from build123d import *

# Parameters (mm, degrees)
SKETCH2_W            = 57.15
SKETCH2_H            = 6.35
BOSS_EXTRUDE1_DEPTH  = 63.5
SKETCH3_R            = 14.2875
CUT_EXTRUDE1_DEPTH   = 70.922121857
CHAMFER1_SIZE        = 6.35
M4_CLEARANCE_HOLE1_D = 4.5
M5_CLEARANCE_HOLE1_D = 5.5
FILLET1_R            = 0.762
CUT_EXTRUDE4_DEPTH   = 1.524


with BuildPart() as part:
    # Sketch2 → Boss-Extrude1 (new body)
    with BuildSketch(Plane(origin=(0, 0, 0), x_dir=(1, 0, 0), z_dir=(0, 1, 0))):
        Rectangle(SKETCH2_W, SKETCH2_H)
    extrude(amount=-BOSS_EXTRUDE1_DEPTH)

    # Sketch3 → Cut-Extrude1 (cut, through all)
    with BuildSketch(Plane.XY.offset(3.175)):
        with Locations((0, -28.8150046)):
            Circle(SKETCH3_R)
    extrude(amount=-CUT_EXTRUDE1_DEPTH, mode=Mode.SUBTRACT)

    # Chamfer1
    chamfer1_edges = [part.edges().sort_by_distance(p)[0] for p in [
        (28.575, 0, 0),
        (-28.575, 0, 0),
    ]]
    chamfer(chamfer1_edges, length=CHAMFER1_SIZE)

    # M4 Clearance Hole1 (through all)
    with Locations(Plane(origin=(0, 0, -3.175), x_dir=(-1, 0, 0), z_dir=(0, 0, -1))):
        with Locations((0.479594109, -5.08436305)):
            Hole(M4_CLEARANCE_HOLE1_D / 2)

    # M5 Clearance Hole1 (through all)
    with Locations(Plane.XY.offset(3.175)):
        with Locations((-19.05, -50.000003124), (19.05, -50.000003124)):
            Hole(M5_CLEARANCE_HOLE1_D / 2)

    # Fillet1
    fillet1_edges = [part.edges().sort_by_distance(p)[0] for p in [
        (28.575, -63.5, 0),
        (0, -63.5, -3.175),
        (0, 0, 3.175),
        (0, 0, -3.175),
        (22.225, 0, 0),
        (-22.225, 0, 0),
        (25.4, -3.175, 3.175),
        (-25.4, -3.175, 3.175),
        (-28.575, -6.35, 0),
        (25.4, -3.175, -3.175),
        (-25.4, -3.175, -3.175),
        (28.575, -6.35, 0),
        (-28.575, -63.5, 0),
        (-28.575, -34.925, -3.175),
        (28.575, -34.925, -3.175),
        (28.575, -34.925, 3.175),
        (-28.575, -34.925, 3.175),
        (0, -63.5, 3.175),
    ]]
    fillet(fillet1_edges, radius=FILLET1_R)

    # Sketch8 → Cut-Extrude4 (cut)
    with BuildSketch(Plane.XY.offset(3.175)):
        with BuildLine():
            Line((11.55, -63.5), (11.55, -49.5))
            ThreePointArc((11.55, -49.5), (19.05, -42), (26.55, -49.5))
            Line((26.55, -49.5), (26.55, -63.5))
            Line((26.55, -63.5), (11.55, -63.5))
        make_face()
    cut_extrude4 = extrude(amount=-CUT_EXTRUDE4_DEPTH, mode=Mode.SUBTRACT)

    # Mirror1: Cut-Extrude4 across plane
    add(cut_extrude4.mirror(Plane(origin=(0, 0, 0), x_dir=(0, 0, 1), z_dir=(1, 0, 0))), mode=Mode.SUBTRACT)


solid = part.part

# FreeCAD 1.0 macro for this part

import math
import FreeCAD as App
import Part
import Sketcher

V = App.Vector
Q = App.Units.Quantity


def edges_at(feature, points):
    """Names of the edges that pass closest to the given points."""
    edges = feature.Shape.Edges
    near = lambda p: min(range(len(edges)), key=lambda i: edges[i].distToShape(Part.Vertex(*p))[0])
    return sorted({f"Edge{near(p) + 1}" for p in points})

doc = App.newDocument("Part")
body = doc.addObject("PartDesign::Body", "Body")

sketch1 = doc.addObject("Sketcher::SketchObject", "Sketch")
body.addObject(sketch1)
sketch1.AttachmentSupport = (doc.XZ_Plane, [""])
sketch1.MapMode = "FlatFace"
sketch1.addGeometry([
    Part.LineSegment(V(-29, -3, 0), V(-29, 3, 0)),
    Part.LineSegment(V(-29, 3, 0), V(29, 3, 0)),
    Part.LineSegment(V(29, 3, 0), V(29, -3, 0)),
    Part.LineSegment(V(29, -3, 0), V(-29, -3, 0)),
], False)
sketch1.addConstraint([
    Sketcher.Constraint("Coincident", 0, 2, 1, 1),
    Sketcher.Constraint("Coincident", 1, 2, 2, 1),
    Sketcher.Constraint("Coincident", 2, 2, 3, 1),
    Sketcher.Constraint("Coincident", 3, 2, 0, 1),
    Sketcher.Constraint("Vertical", 0),
    Sketcher.Constraint("Horizontal", 1),
    Sketcher.Constraint("Vertical", 2),
    Sketcher.Constraint("Horizontal", 3),
    Sketcher.Constraint("Symmetric", 0, 2, 2, 2, -1, 1),
    Sketcher.Constraint("DistanceX", 1, 1, 1, 2, Q("2.25 in")),
    Sketcher.Constraint("DistanceY", 0, 1, 0, 2, Q("0.25 in")),
])
pad1 = doc.addObject("PartDesign::Pad", "Pad")
body.addObject(pad1)
pad1.Profile = sketch1
pad1.Length = Q("2.5 in")

sketch2 = doc.addObject("Sketcher::SketchObject", "Sketch001")
body.addObject(sketch2)
sketch2.AttachmentSupport = (doc.XY_Plane, [""])
sketch2.MapMode = "FlatFace"
sketch2.AttachmentOffset = App.Placement(V(0, 0, 0.125 * 25.4), App.Rotation())
sketch2.addGeometry(Part.Circle(V(0, -29, 0), V(0, 0, 1), 14), False)
sketch2.addConstraint([
    Sketcher.Constraint("PointOnObject", 0, 3, -2),
    Sketcher.Constraint("Diameter", 0, Q("1.125 in")),
    Sketcher.Constraint("DistanceY", 0, 3, -1, 1, 28.815005),
])
pocket1 = doc.addObject("PartDesign::Pocket", "Pocket")
body.addObject(pocket1)
pocket1.Profile = sketch2
pocket1.Type = "ThroughAll"
doc.recompute()

chamfer = doc.addObject("PartDesign::Chamfer", "Chamfer")
body.addObject(chamfer)
chamfer.Base = (pocket1, edges_at(pocket1, [(28.575, 0, 0), (-28.575, 0, 0)]))
chamfer.Size = Q("0.25 in")

sketch3 = doc.addObject("Sketcher::SketchObject", "Sketch002")
body.addObject(sketch3)
sketch3.AttachmentSupport = (doc.XY_Plane, [""])
sketch3.MapMode = "FlatFace"
sketch3.AttachmentOffset = App.Placement(V(0, 0, -0.125 * 25.4), App.Rotation())
sketch3.addGeometry(Part.Circle(V(-0.5, -5.1, 0), V(0, 0, 1), 2.2), False)
sketch3.addConstraint([
    Sketcher.Constraint("Diameter", 0, 4.5),
    Sketcher.Constraint("DistanceX", 0, 3, -1, 1, 0.479594),
    Sketcher.Constraint("DistanceY", 0, 3, -1, 1, 5.084363),
])
doc.recompute()
hole = doc.addObject("PartDesign::Hole", "Hole")
body.addObject(hole)
hole.Profile = sketch3
hole.ThreadType = "None"
hole.Diameter = 4.5
hole.DepthType = "ThroughAll"
hole.Reversed = True

sketch4 = doc.addObject("Sketcher::SketchObject", "Sketch003")
body.addObject(sketch4)
sketch4.AttachmentSupport = (doc.XY_Plane, [""])
sketch4.MapMode = "FlatFace"
sketch4.AttachmentOffset = App.Placement(V(0, 0, 0.125 * 25.4), App.Rotation())
sketch4.addGeometry([
    Part.Circle(V(-19.1, -50, 0), V(0, 0, 1), 2.8),
    Part.Circle(V(19.1, -50, 0), V(0, 0, 1), 2.8),
], False)
sketch4.addConstraint([
    Sketcher.Constraint("Equal", 0, 1),
    Sketcher.Constraint("Symmetric", 0, 3, 1, 3, -2),
    Sketcher.Constraint("DistanceX", 0, 3, 1, 3, Q("1.5 in")),
    Sketcher.Constraint("Diameter", 0, 5.5),
    Sketcher.Constraint("DistanceY", 0, 3, -1, 1, 50.000003),
])
doc.recompute()
hole2 = doc.addObject("PartDesign::Hole", "Hole001")
body.addObject(hole2)
hole2.Profile = sketch4
hole2.ThreadType = "None"
hole2.Diameter = 5.5
hole2.DepthType = "ThroughAll"
doc.recompute()

fillet = doc.addObject("PartDesign::Fillet", "Fillet")
body.addObject(fillet)
fillet.Base = (hole2, edges_at(hole2, [
    (28.575, -63.5, 0),
    (0, -63.5, -3.175),
    (0, 0, 3.175),
    (0, 0, -3.175),
    (22.225, 0, 0),
    (-22.225, 0, 0),
    (25.4, -3.175, 3.175),
    (-25.4, -3.175, 3.175),
    (-28.575, -6.35, 0),
    (25.4, -3.175, -3.175),
    (-25.4, -3.175, -3.175),
    (28.575, -6.35, 0),
    (-28.575, -63.5, 0),
    (-28.575, -34.925, -3.175),
    (28.575, -34.925, -3.175),
    (28.575, -34.925, 3.175),
    (-28.575, -34.925, 3.175),
    (0, -63.5, 3.175),
]))
fillet.Radius = Q("0.03 in")

sketch5 = doc.addObject("Sketcher::SketchObject", "Sketch004")
body.addObject(sketch5)
sketch5.AttachmentSupport = (doc.XY_Plane, [""])
sketch5.MapMode = "FlatFace"
sketch5.AttachmentOffset = App.Placement(V(0, 0, 0.125 * 25.4), App.Rotation())
sketch5.addGeometry([
    Part.LineSegment(V(12, -50, 0), V(12, -64, 0)),
    Part.LineSegment(V(12, -64, 0), V(27, -64, 0)),
    Part.LineSegment(V(27, -64, 0), V(27, -50, 0)),
    Part.ArcOfCircle(Part.Circle(V(19, -50, 0), V(0, 0, 1), 8), math.radians(0), math.radians(180)),
], False)
sketch5.addConstraint([
    Sketcher.Constraint("Coincident", 0, 2, 1, 1),
    Sketcher.Constraint("Coincident", 1, 2, 2, 1),
    Sketcher.Constraint("Tangent", 2, 2, 3, 1),
    Sketcher.Constraint("Tangent", 3, 2, 0, 1),
    Sketcher.Constraint("Vertical", 0),
    Sketcher.Constraint("Horizontal", 1),
    Sketcher.Constraint("Vertical", 2),
    Sketcher.Constraint("DistanceY", 0, 2, -1, 1, Q("2.5 in")),
    Sketcher.Constraint("DistanceX", -1, 1, 3, 3, Q("0.75 in")),
    Sketcher.Constraint("Radius", 3, 7.5),
    Sketcher.Constraint("DistanceY", 0, 2, 0, 1, 14.0),
])
pocket2 = doc.addObject("PartDesign::Pocket", "Pocket001")
body.addObject(pocket2)
pocket2.Profile = sketch5
pocket2.Length = Q("0.06 in")
doc.recompute()

mirrored = doc.addObject("PartDesign::Mirrored", "Mirrored")
body.addObject(mirrored)
mirrored.Originals = [pocket2]
mirrored.MirrorPlane = (doc.YZ_Plane, [""])
body.Tip = mirrored

doc.recompute()
